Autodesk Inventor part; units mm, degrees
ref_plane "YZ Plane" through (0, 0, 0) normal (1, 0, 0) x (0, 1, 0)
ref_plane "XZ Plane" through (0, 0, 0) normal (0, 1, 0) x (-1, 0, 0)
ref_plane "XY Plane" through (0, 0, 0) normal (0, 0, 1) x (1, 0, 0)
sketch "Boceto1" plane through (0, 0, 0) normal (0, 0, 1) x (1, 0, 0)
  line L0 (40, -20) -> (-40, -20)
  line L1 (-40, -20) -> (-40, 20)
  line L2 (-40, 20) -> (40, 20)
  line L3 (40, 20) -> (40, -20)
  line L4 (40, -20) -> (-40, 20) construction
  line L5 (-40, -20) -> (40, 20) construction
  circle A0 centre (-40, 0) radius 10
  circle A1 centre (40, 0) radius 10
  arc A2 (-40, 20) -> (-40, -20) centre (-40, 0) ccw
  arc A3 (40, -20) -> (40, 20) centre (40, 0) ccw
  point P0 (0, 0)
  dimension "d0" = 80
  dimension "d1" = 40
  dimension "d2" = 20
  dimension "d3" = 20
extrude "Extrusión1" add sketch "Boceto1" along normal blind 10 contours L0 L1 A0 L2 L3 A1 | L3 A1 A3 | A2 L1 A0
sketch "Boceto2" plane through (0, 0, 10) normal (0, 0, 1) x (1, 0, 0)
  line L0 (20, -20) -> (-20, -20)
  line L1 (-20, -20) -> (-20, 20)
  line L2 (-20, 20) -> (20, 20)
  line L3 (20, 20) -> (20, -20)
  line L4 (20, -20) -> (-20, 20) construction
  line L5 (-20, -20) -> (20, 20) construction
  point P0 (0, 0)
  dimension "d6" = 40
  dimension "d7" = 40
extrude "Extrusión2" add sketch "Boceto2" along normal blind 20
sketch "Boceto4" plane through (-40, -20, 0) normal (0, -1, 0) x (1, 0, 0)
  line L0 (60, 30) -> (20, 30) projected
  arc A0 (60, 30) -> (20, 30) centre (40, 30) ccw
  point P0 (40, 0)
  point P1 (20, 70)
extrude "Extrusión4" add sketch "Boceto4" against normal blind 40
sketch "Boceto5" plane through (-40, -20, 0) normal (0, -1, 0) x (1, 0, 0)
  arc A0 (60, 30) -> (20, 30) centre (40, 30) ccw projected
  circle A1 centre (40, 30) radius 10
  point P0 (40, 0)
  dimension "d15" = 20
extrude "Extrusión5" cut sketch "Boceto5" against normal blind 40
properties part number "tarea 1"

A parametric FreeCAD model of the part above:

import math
import FreeCAD as App
import Part
import Sketcher

doc = App.newDocument("Part")
params = doc.addObject("Spreadsheet::Sheet", "Params")
for row, (alias, value) in enumerate([
    ("sketch1_diameter", "20 mm"),
    ("sketch1_radius", "20 mm"),
    ("sketch1_width", "80 mm"),
    ("pad1_length", "10 mm"),
    ("sketch2_width", "40 mm"),
    ("pad2_length", "20 mm"),
    ("sketch3_radius", "20 mm"),
    ("pad3_length", "40 mm"),
    ("sketch4_diameter", "20 mm"),
    ("pocket1_length", "40 mm"),
], start=1):
    params.set(f"A{row}", alias)
    params.set(f"B{row}", "=" + value)
    params.setAlias(f"B{row}", alias)

body = doc.addObject("PartDesign::Body", "Body")

# Sketch on XY plane
sketch1 = doc.addObject("Sketcher::SketchObject", "Sketch")
body.addObject(sketch1)
sketch1.AttachmentSupport = (doc.XY_Plane, [""])
sketch1.MapMode = "FlatFace"
sketch1.addGeometry([
    Part.LineSegment(App.Vector(-40, -20, 0), App.Vector(40, -20, 0)),  # 0
    Part.ArcOfCircle(Part.Circle(App.Vector(40, 0, 0), App.Vector(0, 0, 1), 20), math.radians(-90), math.radians(90)),  # 1
    Part.LineSegment(App.Vector(40, 20, 0), App.Vector(-40, 20, 0)),  # 2
    Part.ArcOfCircle(Part.Circle(App.Vector(-40, 0, 0), App.Vector(0, 0, 1), 20), math.radians(90), math.radians(270)),  # 3
    Part.Circle(App.Vector(-40, 0, 0), App.Vector(0, 0, 1), 10),  # 4
    Part.Circle(App.Vector(40, 0, 0), App.Vector(0, 0, 1), 10),  # 5
], False)
sketch1.addConstraint([
    Sketcher.Constraint("Tangent", 0, 2, 1, 1),
    Sketcher.Constraint("Tangent", 1, 2, 2, 1),
    Sketcher.Constraint("Tangent", 2, 2, 3, 1),
    Sketcher.Constraint("Tangent", 3, 2, 0, 1),
    Sketcher.Constraint("Horizontal", 0),
    Sketcher.Constraint("Horizontal", 2),
    Sketcher.Constraint("Coincident", 4, 3, 3, 3),
    Sketcher.Constraint("Coincident", 5, 3, 1, 3),
    Sketcher.Constraint("Equal", 4, 5),
    Sketcher.Constraint("Symmetric", 1, 3, 3, 3, -1, 1),
    Sketcher.Constraint("Diameter", 4, 20.0),
    Sketcher.Constraint("Radius", 1, 20.0),
    Sketcher.Constraint("DistanceX", 0, 1, 0, 2, 80.0),
])
sketch1.setExpression("Constraints[10]", "Params.sketch1_diameter")
sketch1.setExpression("Constraints[11]", "Params.sketch1_radius")
sketch1.setExpression("Constraints[12]", "Params.sketch1_width")
pad1 = doc.addObject("PartDesign::Pad", "Pad")
body.addObject(pad1)
pad1.Profile = sketch1
pad1.setExpression("Length", "Params.pad1_length")

# Sketch on XY plane
sketch2 = doc.addObject("Sketcher::SketchObject", "Sketch001")
body.addObject(sketch2)
sketch2.AttachmentSupport = (doc.XY_Plane, [""])
sketch2.MapMode = "FlatFace"
sketch2.AttachmentOffset = App.Placement(App.Vector(0, 0, 10), App.Rotation())
sketch2.addGeometry([
    Part.LineSegment(App.Vector(-20, -20, 0), App.Vector(20, -20, 0)),
    Part.LineSegment(App.Vector(20, -20, 0), App.Vector(20, 20, 0)),
    Part.LineSegment(App.Vector(20, 20, 0), App.Vector(-20, 20, 0)),
    Part.LineSegment(App.Vector(-20, 20, 0), App.Vector(-20, -20, 0)),
], False)
sketch2.addConstraint([
    Sketcher.Constraint("Coincident", 0, 2, 1, 1),
    Sketcher.Constraint("Coincident", 1, 2, 2, 1),
    Sketcher.Constraint("Coincident", 2, 2, 3, 1),
    Sketcher.Constraint("Coincident", 3, 2, 0, 1),
    Sketcher.Constraint("Horizontal", 0),
    Sketcher.Constraint("Vertical", 1),
    Sketcher.Constraint("Horizontal", 2),
    Sketcher.Constraint("Vertical", 3),
    Sketcher.Constraint("Symmetric", 0, 2, 2, 2, -1, 1),
    Sketcher.Constraint("Equal", 2, 1),
    Sketcher.Constraint("DistanceX", 0, 1, 0, 2, 40.0),
])
sketch2.setExpression("Constraints[10]", "Params.sketch2_width")
pad2 = doc.addObject("PartDesign::Pad", "Pad001")
body.addObject(pad2)
pad2.Profile = sketch2
pad2.setExpression("Length", "Params.pad2_length")

# Sketch on XZ plane
sketch3 = doc.addObject("Sketcher::SketchObject", "Sketch002")
body.addObject(sketch3)
sketch3.AttachmentSupport = (doc.XZ_Plane, [""])
sketch3.MapMode = "FlatFace"
sketch3.AttachmentOffset = App.Placement(App.Vector(0, 0, 20), App.Rotation())
sketch3.addGeometry([
    Part.LineSegment(App.Vector(-20, 30, 0), App.Vector(20, 30, 0)),
    Part.ArcOfCircle(Part.Circle(App.Vector(0, 30, 0), App.Vector(0, 0, 1), 20), math.radians(0), math.radians(180)),
], False)
sketch3.addConstraint([
    Sketcher.Constraint("Coincident", 0, 1, 1, 2),
    Sketcher.Constraint("Coincident", 1, 1, 0, 2),
    Sketcher.Constraint("Horizontal", 0),
    Sketcher.Constraint("PointOnObject", 1, 3, -2),
    Sketcher.Constraint("Horizontal", 1, 3, 0, 1),
    Sketcher.Constraint("Radius", 1, 20.0),
    Sketcher.Constraint("DistanceY", -1, 1, 1, 3, 30.0),
])
sketch3.setExpression("Constraints[5]", "Params.sketch3_radius")
pad3 = doc.addObject("PartDesign::Pad", "Pad002")
body.addObject(pad3)
pad3.Profile = sketch3
pad3.setExpression("Length", "Params.pad3_length")
pad3.Reversed = True

# Sketch on XZ plane
sketch4 = doc.addObject("Sketcher::SketchObject", "Sketch003")
body.addObject(sketch4)
sketch4.AttachmentSupport = (doc.XZ_Plane, [""])
sketch4.MapMode = "FlatFace"
sketch4.AttachmentOffset = App.Placement(App.Vector(0, 0, 20), App.Rotation())
sketch4.addGeometry(Part.Circle(App.Vector(0, 30, 0), App.Vector(0, 0, 1), 10), False)
sketch4.addConstraint([
    Sketcher.Constraint("PointOnObject", 0, 3, -2),
    Sketcher.Constraint("Diameter", 0, 20.0),
    Sketcher.Constraint("DistanceY", -1, 1, 0, 3, 30.0),
])
sketch4.setExpression("Constraints[1]", "Params.sketch4_diameter")
pocket1 = doc.addObject("PartDesign::Pocket", "Pocket")
body.addObject(pocket1)
pocket1.Profile = sketch4
pocket1.setExpression("Length", "Params.pocket1_length")

doc.recompute()
